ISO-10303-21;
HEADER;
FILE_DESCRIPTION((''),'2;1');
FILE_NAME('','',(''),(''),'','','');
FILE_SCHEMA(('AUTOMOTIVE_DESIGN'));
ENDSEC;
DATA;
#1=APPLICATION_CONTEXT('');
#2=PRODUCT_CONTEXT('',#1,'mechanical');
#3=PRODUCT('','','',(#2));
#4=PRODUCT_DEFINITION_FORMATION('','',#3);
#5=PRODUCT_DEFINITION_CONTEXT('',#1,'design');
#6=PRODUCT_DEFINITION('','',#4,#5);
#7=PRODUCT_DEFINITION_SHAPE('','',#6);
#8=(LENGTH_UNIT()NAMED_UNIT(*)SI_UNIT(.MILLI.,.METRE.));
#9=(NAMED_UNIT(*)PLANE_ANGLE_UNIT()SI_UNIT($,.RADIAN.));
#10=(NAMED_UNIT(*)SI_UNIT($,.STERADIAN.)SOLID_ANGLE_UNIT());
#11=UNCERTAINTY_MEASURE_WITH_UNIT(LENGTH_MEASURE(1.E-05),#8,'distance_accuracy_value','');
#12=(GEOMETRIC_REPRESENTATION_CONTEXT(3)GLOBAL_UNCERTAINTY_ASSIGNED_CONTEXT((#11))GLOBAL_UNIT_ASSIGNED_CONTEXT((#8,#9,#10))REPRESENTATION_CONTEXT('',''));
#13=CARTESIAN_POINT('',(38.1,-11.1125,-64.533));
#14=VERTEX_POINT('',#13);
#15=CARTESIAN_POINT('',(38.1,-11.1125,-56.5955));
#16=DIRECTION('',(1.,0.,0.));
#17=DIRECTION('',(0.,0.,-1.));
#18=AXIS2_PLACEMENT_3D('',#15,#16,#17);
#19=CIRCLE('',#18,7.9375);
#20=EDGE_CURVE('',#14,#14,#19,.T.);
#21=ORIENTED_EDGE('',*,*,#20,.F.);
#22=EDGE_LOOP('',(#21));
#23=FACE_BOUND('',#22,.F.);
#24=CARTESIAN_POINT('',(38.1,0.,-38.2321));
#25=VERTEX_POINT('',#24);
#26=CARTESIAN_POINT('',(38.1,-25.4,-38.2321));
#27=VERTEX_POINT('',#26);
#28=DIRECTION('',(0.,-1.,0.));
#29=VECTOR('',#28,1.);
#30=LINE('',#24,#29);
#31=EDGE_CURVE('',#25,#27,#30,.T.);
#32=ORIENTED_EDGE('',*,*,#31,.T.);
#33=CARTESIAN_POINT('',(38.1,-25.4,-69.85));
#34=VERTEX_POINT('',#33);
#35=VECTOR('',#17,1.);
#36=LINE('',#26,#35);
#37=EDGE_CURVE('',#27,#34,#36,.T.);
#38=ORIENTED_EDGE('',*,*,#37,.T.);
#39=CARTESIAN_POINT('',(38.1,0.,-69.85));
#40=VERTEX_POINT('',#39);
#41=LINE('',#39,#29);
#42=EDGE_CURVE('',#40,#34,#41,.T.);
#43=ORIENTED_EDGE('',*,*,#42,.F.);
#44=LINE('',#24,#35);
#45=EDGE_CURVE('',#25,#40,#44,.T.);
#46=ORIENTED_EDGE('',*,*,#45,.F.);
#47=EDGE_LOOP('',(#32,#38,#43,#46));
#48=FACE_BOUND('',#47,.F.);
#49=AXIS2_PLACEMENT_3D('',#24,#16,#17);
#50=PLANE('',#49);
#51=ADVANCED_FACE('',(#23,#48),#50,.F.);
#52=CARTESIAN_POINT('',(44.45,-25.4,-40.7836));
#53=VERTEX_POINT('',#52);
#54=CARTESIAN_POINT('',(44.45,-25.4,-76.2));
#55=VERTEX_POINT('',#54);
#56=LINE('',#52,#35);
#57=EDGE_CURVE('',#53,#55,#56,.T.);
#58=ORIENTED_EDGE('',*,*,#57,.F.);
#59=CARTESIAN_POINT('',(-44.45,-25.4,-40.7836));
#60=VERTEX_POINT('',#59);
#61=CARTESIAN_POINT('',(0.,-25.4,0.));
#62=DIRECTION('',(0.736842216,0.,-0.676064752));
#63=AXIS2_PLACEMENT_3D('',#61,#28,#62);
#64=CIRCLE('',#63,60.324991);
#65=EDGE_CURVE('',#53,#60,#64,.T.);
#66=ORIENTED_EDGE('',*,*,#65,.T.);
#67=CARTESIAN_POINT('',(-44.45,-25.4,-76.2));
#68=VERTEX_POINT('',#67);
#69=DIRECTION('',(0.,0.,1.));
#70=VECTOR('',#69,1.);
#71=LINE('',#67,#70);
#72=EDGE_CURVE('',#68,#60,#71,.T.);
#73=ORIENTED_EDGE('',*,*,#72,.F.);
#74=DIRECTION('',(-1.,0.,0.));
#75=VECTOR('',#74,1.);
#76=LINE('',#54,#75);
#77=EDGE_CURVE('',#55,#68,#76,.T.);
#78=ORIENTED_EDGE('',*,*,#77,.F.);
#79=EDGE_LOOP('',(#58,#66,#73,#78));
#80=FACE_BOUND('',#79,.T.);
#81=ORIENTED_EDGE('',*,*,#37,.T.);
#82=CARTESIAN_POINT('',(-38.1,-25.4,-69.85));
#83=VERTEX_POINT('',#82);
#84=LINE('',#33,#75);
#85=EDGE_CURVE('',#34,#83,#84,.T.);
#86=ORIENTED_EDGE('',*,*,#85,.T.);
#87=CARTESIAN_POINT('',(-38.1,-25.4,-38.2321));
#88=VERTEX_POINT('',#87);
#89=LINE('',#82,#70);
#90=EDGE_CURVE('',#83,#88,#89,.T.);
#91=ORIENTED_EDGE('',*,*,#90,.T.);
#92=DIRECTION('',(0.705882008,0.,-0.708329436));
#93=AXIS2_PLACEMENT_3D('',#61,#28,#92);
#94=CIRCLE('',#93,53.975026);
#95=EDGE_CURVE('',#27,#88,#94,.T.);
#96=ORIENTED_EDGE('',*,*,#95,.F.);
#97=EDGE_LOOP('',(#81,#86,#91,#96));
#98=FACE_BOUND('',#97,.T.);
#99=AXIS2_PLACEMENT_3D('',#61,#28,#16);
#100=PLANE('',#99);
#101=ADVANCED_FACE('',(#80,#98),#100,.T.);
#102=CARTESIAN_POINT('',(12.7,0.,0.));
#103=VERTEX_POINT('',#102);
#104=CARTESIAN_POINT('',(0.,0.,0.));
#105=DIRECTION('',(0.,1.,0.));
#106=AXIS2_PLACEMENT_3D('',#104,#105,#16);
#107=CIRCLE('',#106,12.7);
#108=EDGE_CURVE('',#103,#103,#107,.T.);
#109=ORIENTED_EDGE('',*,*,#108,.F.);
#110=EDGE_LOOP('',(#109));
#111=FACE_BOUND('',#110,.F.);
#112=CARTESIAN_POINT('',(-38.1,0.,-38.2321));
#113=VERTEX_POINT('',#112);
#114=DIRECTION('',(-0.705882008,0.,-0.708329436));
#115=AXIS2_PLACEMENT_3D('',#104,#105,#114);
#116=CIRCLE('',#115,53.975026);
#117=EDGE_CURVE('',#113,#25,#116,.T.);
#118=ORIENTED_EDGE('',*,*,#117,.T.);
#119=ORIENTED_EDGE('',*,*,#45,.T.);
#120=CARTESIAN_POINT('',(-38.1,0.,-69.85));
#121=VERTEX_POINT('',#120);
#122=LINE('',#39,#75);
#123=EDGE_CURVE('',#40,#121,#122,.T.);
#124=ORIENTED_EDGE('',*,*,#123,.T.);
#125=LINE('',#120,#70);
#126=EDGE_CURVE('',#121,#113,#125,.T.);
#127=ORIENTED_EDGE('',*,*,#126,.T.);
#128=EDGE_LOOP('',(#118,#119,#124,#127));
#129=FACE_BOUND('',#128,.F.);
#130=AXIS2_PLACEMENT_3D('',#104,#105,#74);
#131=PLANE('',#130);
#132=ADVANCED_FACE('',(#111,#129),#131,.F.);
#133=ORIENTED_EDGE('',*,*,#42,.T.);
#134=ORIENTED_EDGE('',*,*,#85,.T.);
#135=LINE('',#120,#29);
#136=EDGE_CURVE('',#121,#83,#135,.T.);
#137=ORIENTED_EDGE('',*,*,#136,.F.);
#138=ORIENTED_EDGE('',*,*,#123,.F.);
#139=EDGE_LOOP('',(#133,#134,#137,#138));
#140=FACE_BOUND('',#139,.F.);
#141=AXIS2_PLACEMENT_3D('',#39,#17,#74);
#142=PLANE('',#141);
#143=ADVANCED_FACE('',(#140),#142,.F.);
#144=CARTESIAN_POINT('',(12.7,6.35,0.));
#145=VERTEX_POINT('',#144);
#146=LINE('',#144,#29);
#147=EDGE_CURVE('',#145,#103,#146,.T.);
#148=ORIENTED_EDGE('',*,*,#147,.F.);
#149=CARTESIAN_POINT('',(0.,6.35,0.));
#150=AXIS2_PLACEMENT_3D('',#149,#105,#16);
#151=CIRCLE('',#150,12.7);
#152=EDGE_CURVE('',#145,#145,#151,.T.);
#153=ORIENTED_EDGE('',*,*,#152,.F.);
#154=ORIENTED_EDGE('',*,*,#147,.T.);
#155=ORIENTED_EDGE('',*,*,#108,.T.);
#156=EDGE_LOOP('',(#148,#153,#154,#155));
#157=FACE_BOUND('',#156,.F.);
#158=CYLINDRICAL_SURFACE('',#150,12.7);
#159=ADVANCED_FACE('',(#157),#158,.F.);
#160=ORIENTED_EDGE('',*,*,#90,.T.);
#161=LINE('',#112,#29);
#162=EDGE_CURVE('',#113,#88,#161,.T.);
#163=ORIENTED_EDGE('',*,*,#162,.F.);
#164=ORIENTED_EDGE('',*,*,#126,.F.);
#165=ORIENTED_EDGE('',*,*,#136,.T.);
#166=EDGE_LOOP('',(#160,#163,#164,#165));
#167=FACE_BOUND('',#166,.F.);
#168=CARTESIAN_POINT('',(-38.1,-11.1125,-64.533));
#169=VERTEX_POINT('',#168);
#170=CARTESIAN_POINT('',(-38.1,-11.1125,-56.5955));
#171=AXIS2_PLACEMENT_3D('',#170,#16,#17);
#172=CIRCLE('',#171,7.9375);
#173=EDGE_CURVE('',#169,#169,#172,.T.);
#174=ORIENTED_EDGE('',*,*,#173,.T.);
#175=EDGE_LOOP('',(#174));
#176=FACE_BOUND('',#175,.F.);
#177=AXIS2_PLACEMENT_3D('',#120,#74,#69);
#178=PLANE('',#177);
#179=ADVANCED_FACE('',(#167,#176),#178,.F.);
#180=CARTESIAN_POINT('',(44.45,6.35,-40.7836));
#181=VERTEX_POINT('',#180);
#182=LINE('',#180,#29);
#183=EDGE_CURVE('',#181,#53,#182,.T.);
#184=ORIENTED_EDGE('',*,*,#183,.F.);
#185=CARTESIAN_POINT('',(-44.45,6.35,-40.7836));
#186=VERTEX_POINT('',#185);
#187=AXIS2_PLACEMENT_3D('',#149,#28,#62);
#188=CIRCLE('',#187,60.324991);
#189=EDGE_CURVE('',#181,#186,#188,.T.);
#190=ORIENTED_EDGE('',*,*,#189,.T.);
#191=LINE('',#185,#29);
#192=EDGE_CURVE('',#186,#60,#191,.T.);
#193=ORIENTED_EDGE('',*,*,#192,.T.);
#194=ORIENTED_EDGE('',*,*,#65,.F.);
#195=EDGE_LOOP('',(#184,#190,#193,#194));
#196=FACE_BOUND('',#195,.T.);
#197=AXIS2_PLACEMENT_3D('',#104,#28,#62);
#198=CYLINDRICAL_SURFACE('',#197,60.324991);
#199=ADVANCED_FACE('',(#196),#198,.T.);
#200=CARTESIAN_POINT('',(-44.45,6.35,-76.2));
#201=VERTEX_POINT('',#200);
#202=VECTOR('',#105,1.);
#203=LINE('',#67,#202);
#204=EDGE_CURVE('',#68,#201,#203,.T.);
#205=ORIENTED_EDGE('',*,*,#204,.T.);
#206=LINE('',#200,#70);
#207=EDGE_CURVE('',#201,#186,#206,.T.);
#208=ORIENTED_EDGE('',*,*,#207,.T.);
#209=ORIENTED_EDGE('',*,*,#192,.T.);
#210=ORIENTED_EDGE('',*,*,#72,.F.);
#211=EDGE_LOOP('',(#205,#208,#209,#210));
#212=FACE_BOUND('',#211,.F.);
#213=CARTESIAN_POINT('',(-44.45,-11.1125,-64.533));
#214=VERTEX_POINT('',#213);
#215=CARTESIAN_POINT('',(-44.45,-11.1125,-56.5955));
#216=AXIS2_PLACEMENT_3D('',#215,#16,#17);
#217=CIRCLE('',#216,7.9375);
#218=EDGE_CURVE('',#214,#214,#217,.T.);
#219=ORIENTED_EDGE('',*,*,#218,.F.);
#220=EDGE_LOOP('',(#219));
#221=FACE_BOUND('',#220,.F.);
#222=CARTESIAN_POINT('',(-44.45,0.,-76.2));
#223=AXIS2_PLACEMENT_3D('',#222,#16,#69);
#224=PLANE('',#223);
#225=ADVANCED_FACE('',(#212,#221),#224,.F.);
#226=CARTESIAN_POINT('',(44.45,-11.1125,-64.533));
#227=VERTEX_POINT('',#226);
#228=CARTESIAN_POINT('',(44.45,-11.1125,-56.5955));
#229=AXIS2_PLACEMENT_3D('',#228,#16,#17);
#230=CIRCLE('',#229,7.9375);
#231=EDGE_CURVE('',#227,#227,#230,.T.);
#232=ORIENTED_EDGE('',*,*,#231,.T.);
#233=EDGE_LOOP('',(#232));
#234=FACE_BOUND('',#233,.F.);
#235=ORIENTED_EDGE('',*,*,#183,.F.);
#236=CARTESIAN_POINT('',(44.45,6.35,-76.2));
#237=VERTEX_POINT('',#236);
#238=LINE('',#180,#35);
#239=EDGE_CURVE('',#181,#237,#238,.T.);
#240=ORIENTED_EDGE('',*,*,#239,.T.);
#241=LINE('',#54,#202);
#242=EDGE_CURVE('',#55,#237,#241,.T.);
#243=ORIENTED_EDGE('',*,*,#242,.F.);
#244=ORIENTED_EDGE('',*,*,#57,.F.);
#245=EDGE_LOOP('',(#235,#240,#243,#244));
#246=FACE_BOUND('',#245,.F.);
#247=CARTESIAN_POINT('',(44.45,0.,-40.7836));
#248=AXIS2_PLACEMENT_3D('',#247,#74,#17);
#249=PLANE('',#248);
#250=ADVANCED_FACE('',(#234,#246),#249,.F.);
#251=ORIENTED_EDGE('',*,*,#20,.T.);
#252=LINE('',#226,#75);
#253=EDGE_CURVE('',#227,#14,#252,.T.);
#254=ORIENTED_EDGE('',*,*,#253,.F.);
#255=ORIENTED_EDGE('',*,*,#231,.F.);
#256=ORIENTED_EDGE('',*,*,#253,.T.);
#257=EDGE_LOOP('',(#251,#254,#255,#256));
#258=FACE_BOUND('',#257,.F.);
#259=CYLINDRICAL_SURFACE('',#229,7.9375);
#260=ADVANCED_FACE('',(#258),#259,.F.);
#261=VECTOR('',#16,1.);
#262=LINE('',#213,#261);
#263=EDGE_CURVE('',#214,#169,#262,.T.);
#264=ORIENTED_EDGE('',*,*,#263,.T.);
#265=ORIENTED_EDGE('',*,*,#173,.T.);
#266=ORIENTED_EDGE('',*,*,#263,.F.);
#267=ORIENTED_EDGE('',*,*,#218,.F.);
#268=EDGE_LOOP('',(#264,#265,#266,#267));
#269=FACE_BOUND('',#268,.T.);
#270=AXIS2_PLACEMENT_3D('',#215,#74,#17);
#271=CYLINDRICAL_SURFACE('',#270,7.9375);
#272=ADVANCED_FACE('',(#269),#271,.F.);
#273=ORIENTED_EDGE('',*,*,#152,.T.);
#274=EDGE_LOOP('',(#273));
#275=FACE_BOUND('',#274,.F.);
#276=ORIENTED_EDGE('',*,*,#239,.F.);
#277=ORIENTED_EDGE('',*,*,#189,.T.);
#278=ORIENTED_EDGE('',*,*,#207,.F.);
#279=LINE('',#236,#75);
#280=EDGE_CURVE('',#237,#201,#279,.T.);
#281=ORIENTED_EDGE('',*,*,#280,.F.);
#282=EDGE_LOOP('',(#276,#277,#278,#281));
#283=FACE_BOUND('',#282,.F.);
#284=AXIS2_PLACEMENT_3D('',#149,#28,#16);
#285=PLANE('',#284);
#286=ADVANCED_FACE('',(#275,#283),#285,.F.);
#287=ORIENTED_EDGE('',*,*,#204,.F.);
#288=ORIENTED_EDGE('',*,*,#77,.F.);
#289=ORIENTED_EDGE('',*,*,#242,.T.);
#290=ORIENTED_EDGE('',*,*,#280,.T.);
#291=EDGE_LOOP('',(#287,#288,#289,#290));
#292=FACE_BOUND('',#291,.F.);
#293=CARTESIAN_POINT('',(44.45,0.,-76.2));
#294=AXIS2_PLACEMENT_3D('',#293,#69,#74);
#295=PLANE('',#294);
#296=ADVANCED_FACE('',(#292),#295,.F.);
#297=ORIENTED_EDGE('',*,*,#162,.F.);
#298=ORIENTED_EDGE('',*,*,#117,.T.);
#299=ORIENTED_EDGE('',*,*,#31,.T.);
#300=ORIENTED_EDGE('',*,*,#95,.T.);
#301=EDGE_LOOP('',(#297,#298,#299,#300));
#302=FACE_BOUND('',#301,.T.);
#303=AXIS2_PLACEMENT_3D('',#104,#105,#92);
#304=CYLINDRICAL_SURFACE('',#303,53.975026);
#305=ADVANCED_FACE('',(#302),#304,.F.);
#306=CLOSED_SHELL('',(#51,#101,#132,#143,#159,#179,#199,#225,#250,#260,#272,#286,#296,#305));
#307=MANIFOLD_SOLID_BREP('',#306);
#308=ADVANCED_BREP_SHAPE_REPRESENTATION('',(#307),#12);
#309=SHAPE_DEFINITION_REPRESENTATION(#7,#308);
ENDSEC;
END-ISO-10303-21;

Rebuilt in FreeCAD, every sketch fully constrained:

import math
import FreeCAD as App
import Part
import Sketcher

V = App.Vector
Q = App.Units.Quantity

doc = App.newDocument("Part")
body = doc.addObject("PartDesign::Body", "Body")
body.AllowCompound = True

# Sketch on XZ plane
sketch1 = body.newObject("Sketcher::SketchObject", "Sketch")
sketch1.AttachmentSupport = (doc.getObject("XZ_Plane"), [""])
sketch1.MapMode = "FlatFace"
sketch1.addGeometry(Part.LineSegment(V(-38.1, -69.85, 0), V(-38.1, -38.2321, 0)), False)
sketch1.addGeometry(Part.ArcOfCircle(Part.Circle(V(0, 0, 0), V(0, 0, 1), 53.975026), math.radians(-45.099156), math.radians(225.099156)), False)
sketch1.addGeometry(Part.LineSegment(V(38.1, -38.2321, 0), V(38.1, -69.85, 0)), False)
sketch1.addGeometry(Part.LineSegment(V(38.1, -69.85, 0), V(-38.1, -69.85, 0)), False)
sketch1.addConstraint(Sketcher.Constraint("Coincident", 0, 2, 1, 2))
sketch1.addConstraint(Sketcher.Constraint("Coincident", 1, 1, 2, 1))
sketch1.addConstraint(Sketcher.Constraint("Coincident", 2, 2, 3, 1))
sketch1.addConstraint(Sketcher.Constraint("Coincident", 3, 2, 0, 1))
sketch1.addConstraint(Sketcher.Constraint("Vertical", 0))
sketch1.addConstraint(Sketcher.Constraint("Vertical", 2))
sketch1.addConstraint(Sketcher.Constraint("Horizontal", 3))
sketch1.addConstraint(Sketcher.Constraint("Coincident", 1, 3, -1, 1))
sketch1.addConstraint(Sketcher.Constraint("Horizontal", 0, 2, 1, 1))
sketch1.addConstraint(Sketcher.Constraint("Radius", 1, Q("2.125 in")))
sketch1.addConstraint(Sketcher.Constraint("DistanceX", 0, 2, -1, 1, Q("1.5 in")))
sketch1.addConstraint(Sketcher.Constraint("DistanceY", 2, 2, -1, 1, Q("2.75 in")))
pad1 = body.newObject("PartDesign::Pad", "Pad")
pad1.Profile = sketch1
pad1.Length = Q("0.25 in")
pad1.Reversed = True

# Sketch on XZ plane
sketch2 = body.newObject("Sketcher::SketchObject", "Sketch001")
sketch2.AttachmentSupport = (doc.getObject("XZ_Plane"), [""])
sketch2.MapMode = "FlatFace"
sketch2.addGeometry(Part.LineSegment(V(44.45, -76.2, 0), V(44.45, -40.7836, 0)), False)
sketch2.addGeometry(Part.ArcOfCircle(Part.Circle(V(0, 0, 0), V(0, 0, 1), 60.324991), math.radians(-42.536889), math.radians(222.536889)), False)
sketch2.addGeometry(Part.LineSegment(V(-44.45, -40.7836, 0), V(-44.45, -76.2, 0)), False)
sketch2.addGeometry(Part.LineSegment(V(-44.45, -76.2, 0), V(44.45, -76.2, 0)), False)
sketch2.addGeometry(Part.ArcOfCircle(Part.Circle(V(0, 0, 0), V(0, 0, 1), 53.975026), math.radians(-45.099156), math.radians(225.099156)), False)
sketch2.addGeometry(Part.LineSegment(V(38.1, -38.2321, 0), V(38.1, -69.85, 0)), False)
sketch2.addGeometry(Part.LineSegment(V(38.1, -69.85, 0), V(-38.1, -69.85, 0)), False)
sketch2.addGeometry(Part.LineSegment(V(-38.1, -69.85, 0), V(-38.1, -38.2321, 0)), False)
sketch2.addConstraint(Sketcher.Constraint("Coincident", 0, 2, 1, 1))
sketch2.addConstraint(Sketcher.Constraint("Coincident", 1, 2, 2, 1))
sketch2.addConstraint(Sketcher.Constraint("Coincident", 2, 2, 3, 1))
sketch2.addConstraint(Sketcher.Constraint("Coincident", 3, 2, 0, 1))
sketch2.addConstraint(Sketcher.Constraint("Coincident", 4, 1, 5, 1))
sketch2.addConstraint(Sketcher.Constraint("Coincident", 5, 2, 6, 1))
sketch2.addConstraint(Sketcher.Constraint("Coincident", 6, 2, 7, 1))
sketch2.addConstraint(Sketcher.Constraint("Coincident", 7, 2, 4, 2))
sketch2.addConstraint(Sketcher.Constraint("Vertical", 0))
sketch2.addConstraint(Sketcher.Constraint("Vertical", 2))
sketch2.addConstraint(Sketcher.Constraint("Horizontal", 3))
sketch2.addConstraint(Sketcher.Constraint("Vertical", 5))
sketch2.addConstraint(Sketcher.Constraint("Horizontal", 6))
sketch2.addConstraint(Sketcher.Constraint("Vertical", 7))
sketch2.addConstraint(Sketcher.Constraint("Coincident", 1, 3, -1, 1))
sketch2.addConstraint(Sketcher.Constraint("Coincident", 4, 3, -1, 1))
sketch2.addConstraint(Sketcher.Constraint("Horizontal", 0, 2, 1, 2))
sketch2.addConstraint(Sketcher.Constraint("Horizontal", 4, 1, 7, 2))
sketch2.addConstraint(Sketcher.Constraint("DistanceX", 6, 2, 6, 1, Q("3 in")))
sketch2.addConstraint(Sketcher.Constraint("DistanceX", 4, 1, 0, 2, Q("0.25 in")))
sketch2.addConstraint(Sketcher.Constraint("DistanceY", 3, 2, 5, 2, Q("0.25 in")))
sketch2.addConstraint(Sketcher.Constraint("DistanceY", 2, 2, -1, 1, Q("3 in")))
sketch2.addConstraint(Sketcher.Constraint("Radius", 1, Q("2.375 in")))
sketch2.addConstraint(Sketcher.Constraint("Radius", 4, Q("2.125 in")))
pad2 = body.newObject("PartDesign::Pad", "Pad001")
pad2.Profile = sketch2
pad2.Length = Q("1 in")

# Sketch on XZ plane
sketch3 = body.newObject("Sketcher::SketchObject", "Sketch002")
sketch3.AttachmentSupport = (doc.getObject("XZ_Plane"), [""])
sketch3.MapMode = "FlatFace"
sketch3.addGeometry(Part.LineSegment(V(44.45, -76.2, 0), V(44.45, -40.7836, 0)), False)
sketch3.addGeometry(Part.ArcOfCircle(Part.Circle(V(0, 0, 0), V(0, 0, 1), 60.324991), math.radians(-42.536889), math.radians(222.536889)), False)
sketch3.addGeometry(Part.LineSegment(V(-44.45, -40.7836, 0), V(-44.45, -76.2, 0)), False)
sketch3.addGeometry(Part.LineSegment(V(-44.45, -76.2, 0), V(44.45, -76.2, 0)), False)
sketch3.addGeometry(Part.ArcOfCircle(Part.Circle(V(0, 0, 0), V(0, 0, 1), 53.975026), math.radians(-45.099156), math.radians(225.099156)), False)
sketch3.addGeometry(Part.LineSegment(V(38.1, -38.2321, 0), V(38.1, -69.85, 0)), False)
sketch3.addGeometry(Part.LineSegment(V(38.1, -69.85, 0), V(-38.1, -69.85, 0)), False)
sketch3.addGeometry(Part.LineSegment(V(-38.1, -69.85, 0), V(-38.1, -38.2321, 0)), False)
sketch3.addConstraint(Sketcher.Constraint("Coincident", 0, 2, 1, 1))
sketch3.addConstraint(Sketcher.Constraint("Coincident", 1, 2, 2, 1))
sketch3.addConstraint(Sketcher.Constraint("Coincident", 2, 2, 3, 1))
sketch3.addConstraint(Sketcher.Constraint("Coincident", 3, 2, 0, 1))
sketch3.addConstraint(Sketcher.Constraint("Coincident", 4, 1, 5, 1))
sketch3.addConstraint(Sketcher.Constraint("Coincident", 5, 2, 6, 1))
sketch3.addConstraint(Sketcher.Constraint("Coincident", 6, 2, 7, 1))
sketch3.addConstraint(Sketcher.Constraint("Coincident", 7, 2, 4, 2))
sketch3.addConstraint(Sketcher.Constraint("Vertical", 0))
sketch3.addConstraint(Sketcher.Constraint("Vertical", 2))
sketch3.addConstraint(Sketcher.Constraint("Horizontal", 3))
sketch3.addConstraint(Sketcher.Constraint("Vertical", 5))
sketch3.addConstraint(Sketcher.Constraint("Horizontal", 6))
sketch3.addConstraint(Sketcher.Constraint("Vertical", 7))
sketch3.addConstraint(Sketcher.Constraint("Coincident", 1, 3, -1, 1))
sketch3.addConstraint(Sketcher.Constraint("Coincident", 4, 3, -1, 1))
sketch3.addConstraint(Sketcher.Constraint("Horizontal", 0, 2, 1, 2))
sketch3.addConstraint(Sketcher.Constraint("Horizontal", 4, 1, 7, 2))
sketch3.addConstraint(Sketcher.Constraint("DistanceX", 6, 2, 6, 1, Q("3 in")))
sketch3.addConstraint(Sketcher.Constraint("DistanceX", 4, 1, 0, 2, Q("0.25 in")))
sketch3.addConstraint(Sketcher.Constraint("DistanceY", 3, 2, 5, 2, Q("0.25 in")))
sketch3.addConstraint(Sketcher.Constraint("DistanceY", 2, 2, -1, 1, Q("3 in")))
sketch3.addConstraint(Sketcher.Constraint("Radius", 1, Q("2.375 in")))
sketch3.addConstraint(Sketcher.Constraint("Radius", 4, Q("2.125 in")))
pad3 = body.newObject("PartDesign::Pad", "Pad002")
pad3.Profile = sketch3
pad3.Length = Q("0.25 in")
pad3.Reversed = True

# Sketch on YZ plane
sketch4 = body.newObject("Sketcher::SketchObject", "Sketch003")
sketch4.AttachmentSupport = (doc.getObject("YZ_Plane"), [""])
sketch4.MapMode = "FlatFace"
sketch4.AttachmentOffset = App.Placement(V(0, 0, 1.75 * 25.4), App.Rotation())
sketch4.addGeometry(Part.Circle(V(-11.1125, -56.5955, 0), V(0, 0, 1), 7.9375), False)
sketch4.addConstraint(Sketcher.Constraint("Diameter", 0, Q("0.625 in")))
sketch4.addConstraint(Sketcher.Constraint("DistanceX", 0, 3, -1, 1, Q("0.4375 in")))
sketch4.addConstraint(Sketcher.Constraint("DistanceY", 0, 3, -1, 1, Q("56.5955 mm")))
pocket1 = body.newObject("PartDesign::Pocket", "Pocket")
pocket1.Profile = sketch4
pocket1.Length = Q("0.25 in")
doc.recompute()

mirrored = body.newObject("PartDesign::Mirrored", "Mirrored")
mirrored.Originals = [pocket1]
mirrored.MirrorPlane = (doc.getObject("YZ_Plane"), [""])
body.Tip = mirrored

# Sketch on XZ plane
sketch5 = body.newObject("Sketcher::SketchObject", "Sketch004")
sketch5.AttachmentSupport = (doc.getObject("XZ_Plane"), [""])
sketch5.MapMode = "FlatFace"
sketch5.AttachmentOffset = App.Placement(V(0, 0, -0.25 * 25.4), App.Rotation())
sketch5.addGeometry(Part.Circle(V(0, 0, 0), V(0, 0, 1), 12.7), False)
sketch5.addConstraint(Sketcher.Constraint("Coincident", 0, 3, -1, 1))
sketch5.addConstraint(Sketcher.Constraint("Diameter", 0, Q("1 in")))
pocket2 = body.newObject("PartDesign::Pocket", "Pocket001")
pocket2.Profile = sketch5
pocket2.Type = "ThroughAll"
pocket2.Reversed = True

doc.recompute()
